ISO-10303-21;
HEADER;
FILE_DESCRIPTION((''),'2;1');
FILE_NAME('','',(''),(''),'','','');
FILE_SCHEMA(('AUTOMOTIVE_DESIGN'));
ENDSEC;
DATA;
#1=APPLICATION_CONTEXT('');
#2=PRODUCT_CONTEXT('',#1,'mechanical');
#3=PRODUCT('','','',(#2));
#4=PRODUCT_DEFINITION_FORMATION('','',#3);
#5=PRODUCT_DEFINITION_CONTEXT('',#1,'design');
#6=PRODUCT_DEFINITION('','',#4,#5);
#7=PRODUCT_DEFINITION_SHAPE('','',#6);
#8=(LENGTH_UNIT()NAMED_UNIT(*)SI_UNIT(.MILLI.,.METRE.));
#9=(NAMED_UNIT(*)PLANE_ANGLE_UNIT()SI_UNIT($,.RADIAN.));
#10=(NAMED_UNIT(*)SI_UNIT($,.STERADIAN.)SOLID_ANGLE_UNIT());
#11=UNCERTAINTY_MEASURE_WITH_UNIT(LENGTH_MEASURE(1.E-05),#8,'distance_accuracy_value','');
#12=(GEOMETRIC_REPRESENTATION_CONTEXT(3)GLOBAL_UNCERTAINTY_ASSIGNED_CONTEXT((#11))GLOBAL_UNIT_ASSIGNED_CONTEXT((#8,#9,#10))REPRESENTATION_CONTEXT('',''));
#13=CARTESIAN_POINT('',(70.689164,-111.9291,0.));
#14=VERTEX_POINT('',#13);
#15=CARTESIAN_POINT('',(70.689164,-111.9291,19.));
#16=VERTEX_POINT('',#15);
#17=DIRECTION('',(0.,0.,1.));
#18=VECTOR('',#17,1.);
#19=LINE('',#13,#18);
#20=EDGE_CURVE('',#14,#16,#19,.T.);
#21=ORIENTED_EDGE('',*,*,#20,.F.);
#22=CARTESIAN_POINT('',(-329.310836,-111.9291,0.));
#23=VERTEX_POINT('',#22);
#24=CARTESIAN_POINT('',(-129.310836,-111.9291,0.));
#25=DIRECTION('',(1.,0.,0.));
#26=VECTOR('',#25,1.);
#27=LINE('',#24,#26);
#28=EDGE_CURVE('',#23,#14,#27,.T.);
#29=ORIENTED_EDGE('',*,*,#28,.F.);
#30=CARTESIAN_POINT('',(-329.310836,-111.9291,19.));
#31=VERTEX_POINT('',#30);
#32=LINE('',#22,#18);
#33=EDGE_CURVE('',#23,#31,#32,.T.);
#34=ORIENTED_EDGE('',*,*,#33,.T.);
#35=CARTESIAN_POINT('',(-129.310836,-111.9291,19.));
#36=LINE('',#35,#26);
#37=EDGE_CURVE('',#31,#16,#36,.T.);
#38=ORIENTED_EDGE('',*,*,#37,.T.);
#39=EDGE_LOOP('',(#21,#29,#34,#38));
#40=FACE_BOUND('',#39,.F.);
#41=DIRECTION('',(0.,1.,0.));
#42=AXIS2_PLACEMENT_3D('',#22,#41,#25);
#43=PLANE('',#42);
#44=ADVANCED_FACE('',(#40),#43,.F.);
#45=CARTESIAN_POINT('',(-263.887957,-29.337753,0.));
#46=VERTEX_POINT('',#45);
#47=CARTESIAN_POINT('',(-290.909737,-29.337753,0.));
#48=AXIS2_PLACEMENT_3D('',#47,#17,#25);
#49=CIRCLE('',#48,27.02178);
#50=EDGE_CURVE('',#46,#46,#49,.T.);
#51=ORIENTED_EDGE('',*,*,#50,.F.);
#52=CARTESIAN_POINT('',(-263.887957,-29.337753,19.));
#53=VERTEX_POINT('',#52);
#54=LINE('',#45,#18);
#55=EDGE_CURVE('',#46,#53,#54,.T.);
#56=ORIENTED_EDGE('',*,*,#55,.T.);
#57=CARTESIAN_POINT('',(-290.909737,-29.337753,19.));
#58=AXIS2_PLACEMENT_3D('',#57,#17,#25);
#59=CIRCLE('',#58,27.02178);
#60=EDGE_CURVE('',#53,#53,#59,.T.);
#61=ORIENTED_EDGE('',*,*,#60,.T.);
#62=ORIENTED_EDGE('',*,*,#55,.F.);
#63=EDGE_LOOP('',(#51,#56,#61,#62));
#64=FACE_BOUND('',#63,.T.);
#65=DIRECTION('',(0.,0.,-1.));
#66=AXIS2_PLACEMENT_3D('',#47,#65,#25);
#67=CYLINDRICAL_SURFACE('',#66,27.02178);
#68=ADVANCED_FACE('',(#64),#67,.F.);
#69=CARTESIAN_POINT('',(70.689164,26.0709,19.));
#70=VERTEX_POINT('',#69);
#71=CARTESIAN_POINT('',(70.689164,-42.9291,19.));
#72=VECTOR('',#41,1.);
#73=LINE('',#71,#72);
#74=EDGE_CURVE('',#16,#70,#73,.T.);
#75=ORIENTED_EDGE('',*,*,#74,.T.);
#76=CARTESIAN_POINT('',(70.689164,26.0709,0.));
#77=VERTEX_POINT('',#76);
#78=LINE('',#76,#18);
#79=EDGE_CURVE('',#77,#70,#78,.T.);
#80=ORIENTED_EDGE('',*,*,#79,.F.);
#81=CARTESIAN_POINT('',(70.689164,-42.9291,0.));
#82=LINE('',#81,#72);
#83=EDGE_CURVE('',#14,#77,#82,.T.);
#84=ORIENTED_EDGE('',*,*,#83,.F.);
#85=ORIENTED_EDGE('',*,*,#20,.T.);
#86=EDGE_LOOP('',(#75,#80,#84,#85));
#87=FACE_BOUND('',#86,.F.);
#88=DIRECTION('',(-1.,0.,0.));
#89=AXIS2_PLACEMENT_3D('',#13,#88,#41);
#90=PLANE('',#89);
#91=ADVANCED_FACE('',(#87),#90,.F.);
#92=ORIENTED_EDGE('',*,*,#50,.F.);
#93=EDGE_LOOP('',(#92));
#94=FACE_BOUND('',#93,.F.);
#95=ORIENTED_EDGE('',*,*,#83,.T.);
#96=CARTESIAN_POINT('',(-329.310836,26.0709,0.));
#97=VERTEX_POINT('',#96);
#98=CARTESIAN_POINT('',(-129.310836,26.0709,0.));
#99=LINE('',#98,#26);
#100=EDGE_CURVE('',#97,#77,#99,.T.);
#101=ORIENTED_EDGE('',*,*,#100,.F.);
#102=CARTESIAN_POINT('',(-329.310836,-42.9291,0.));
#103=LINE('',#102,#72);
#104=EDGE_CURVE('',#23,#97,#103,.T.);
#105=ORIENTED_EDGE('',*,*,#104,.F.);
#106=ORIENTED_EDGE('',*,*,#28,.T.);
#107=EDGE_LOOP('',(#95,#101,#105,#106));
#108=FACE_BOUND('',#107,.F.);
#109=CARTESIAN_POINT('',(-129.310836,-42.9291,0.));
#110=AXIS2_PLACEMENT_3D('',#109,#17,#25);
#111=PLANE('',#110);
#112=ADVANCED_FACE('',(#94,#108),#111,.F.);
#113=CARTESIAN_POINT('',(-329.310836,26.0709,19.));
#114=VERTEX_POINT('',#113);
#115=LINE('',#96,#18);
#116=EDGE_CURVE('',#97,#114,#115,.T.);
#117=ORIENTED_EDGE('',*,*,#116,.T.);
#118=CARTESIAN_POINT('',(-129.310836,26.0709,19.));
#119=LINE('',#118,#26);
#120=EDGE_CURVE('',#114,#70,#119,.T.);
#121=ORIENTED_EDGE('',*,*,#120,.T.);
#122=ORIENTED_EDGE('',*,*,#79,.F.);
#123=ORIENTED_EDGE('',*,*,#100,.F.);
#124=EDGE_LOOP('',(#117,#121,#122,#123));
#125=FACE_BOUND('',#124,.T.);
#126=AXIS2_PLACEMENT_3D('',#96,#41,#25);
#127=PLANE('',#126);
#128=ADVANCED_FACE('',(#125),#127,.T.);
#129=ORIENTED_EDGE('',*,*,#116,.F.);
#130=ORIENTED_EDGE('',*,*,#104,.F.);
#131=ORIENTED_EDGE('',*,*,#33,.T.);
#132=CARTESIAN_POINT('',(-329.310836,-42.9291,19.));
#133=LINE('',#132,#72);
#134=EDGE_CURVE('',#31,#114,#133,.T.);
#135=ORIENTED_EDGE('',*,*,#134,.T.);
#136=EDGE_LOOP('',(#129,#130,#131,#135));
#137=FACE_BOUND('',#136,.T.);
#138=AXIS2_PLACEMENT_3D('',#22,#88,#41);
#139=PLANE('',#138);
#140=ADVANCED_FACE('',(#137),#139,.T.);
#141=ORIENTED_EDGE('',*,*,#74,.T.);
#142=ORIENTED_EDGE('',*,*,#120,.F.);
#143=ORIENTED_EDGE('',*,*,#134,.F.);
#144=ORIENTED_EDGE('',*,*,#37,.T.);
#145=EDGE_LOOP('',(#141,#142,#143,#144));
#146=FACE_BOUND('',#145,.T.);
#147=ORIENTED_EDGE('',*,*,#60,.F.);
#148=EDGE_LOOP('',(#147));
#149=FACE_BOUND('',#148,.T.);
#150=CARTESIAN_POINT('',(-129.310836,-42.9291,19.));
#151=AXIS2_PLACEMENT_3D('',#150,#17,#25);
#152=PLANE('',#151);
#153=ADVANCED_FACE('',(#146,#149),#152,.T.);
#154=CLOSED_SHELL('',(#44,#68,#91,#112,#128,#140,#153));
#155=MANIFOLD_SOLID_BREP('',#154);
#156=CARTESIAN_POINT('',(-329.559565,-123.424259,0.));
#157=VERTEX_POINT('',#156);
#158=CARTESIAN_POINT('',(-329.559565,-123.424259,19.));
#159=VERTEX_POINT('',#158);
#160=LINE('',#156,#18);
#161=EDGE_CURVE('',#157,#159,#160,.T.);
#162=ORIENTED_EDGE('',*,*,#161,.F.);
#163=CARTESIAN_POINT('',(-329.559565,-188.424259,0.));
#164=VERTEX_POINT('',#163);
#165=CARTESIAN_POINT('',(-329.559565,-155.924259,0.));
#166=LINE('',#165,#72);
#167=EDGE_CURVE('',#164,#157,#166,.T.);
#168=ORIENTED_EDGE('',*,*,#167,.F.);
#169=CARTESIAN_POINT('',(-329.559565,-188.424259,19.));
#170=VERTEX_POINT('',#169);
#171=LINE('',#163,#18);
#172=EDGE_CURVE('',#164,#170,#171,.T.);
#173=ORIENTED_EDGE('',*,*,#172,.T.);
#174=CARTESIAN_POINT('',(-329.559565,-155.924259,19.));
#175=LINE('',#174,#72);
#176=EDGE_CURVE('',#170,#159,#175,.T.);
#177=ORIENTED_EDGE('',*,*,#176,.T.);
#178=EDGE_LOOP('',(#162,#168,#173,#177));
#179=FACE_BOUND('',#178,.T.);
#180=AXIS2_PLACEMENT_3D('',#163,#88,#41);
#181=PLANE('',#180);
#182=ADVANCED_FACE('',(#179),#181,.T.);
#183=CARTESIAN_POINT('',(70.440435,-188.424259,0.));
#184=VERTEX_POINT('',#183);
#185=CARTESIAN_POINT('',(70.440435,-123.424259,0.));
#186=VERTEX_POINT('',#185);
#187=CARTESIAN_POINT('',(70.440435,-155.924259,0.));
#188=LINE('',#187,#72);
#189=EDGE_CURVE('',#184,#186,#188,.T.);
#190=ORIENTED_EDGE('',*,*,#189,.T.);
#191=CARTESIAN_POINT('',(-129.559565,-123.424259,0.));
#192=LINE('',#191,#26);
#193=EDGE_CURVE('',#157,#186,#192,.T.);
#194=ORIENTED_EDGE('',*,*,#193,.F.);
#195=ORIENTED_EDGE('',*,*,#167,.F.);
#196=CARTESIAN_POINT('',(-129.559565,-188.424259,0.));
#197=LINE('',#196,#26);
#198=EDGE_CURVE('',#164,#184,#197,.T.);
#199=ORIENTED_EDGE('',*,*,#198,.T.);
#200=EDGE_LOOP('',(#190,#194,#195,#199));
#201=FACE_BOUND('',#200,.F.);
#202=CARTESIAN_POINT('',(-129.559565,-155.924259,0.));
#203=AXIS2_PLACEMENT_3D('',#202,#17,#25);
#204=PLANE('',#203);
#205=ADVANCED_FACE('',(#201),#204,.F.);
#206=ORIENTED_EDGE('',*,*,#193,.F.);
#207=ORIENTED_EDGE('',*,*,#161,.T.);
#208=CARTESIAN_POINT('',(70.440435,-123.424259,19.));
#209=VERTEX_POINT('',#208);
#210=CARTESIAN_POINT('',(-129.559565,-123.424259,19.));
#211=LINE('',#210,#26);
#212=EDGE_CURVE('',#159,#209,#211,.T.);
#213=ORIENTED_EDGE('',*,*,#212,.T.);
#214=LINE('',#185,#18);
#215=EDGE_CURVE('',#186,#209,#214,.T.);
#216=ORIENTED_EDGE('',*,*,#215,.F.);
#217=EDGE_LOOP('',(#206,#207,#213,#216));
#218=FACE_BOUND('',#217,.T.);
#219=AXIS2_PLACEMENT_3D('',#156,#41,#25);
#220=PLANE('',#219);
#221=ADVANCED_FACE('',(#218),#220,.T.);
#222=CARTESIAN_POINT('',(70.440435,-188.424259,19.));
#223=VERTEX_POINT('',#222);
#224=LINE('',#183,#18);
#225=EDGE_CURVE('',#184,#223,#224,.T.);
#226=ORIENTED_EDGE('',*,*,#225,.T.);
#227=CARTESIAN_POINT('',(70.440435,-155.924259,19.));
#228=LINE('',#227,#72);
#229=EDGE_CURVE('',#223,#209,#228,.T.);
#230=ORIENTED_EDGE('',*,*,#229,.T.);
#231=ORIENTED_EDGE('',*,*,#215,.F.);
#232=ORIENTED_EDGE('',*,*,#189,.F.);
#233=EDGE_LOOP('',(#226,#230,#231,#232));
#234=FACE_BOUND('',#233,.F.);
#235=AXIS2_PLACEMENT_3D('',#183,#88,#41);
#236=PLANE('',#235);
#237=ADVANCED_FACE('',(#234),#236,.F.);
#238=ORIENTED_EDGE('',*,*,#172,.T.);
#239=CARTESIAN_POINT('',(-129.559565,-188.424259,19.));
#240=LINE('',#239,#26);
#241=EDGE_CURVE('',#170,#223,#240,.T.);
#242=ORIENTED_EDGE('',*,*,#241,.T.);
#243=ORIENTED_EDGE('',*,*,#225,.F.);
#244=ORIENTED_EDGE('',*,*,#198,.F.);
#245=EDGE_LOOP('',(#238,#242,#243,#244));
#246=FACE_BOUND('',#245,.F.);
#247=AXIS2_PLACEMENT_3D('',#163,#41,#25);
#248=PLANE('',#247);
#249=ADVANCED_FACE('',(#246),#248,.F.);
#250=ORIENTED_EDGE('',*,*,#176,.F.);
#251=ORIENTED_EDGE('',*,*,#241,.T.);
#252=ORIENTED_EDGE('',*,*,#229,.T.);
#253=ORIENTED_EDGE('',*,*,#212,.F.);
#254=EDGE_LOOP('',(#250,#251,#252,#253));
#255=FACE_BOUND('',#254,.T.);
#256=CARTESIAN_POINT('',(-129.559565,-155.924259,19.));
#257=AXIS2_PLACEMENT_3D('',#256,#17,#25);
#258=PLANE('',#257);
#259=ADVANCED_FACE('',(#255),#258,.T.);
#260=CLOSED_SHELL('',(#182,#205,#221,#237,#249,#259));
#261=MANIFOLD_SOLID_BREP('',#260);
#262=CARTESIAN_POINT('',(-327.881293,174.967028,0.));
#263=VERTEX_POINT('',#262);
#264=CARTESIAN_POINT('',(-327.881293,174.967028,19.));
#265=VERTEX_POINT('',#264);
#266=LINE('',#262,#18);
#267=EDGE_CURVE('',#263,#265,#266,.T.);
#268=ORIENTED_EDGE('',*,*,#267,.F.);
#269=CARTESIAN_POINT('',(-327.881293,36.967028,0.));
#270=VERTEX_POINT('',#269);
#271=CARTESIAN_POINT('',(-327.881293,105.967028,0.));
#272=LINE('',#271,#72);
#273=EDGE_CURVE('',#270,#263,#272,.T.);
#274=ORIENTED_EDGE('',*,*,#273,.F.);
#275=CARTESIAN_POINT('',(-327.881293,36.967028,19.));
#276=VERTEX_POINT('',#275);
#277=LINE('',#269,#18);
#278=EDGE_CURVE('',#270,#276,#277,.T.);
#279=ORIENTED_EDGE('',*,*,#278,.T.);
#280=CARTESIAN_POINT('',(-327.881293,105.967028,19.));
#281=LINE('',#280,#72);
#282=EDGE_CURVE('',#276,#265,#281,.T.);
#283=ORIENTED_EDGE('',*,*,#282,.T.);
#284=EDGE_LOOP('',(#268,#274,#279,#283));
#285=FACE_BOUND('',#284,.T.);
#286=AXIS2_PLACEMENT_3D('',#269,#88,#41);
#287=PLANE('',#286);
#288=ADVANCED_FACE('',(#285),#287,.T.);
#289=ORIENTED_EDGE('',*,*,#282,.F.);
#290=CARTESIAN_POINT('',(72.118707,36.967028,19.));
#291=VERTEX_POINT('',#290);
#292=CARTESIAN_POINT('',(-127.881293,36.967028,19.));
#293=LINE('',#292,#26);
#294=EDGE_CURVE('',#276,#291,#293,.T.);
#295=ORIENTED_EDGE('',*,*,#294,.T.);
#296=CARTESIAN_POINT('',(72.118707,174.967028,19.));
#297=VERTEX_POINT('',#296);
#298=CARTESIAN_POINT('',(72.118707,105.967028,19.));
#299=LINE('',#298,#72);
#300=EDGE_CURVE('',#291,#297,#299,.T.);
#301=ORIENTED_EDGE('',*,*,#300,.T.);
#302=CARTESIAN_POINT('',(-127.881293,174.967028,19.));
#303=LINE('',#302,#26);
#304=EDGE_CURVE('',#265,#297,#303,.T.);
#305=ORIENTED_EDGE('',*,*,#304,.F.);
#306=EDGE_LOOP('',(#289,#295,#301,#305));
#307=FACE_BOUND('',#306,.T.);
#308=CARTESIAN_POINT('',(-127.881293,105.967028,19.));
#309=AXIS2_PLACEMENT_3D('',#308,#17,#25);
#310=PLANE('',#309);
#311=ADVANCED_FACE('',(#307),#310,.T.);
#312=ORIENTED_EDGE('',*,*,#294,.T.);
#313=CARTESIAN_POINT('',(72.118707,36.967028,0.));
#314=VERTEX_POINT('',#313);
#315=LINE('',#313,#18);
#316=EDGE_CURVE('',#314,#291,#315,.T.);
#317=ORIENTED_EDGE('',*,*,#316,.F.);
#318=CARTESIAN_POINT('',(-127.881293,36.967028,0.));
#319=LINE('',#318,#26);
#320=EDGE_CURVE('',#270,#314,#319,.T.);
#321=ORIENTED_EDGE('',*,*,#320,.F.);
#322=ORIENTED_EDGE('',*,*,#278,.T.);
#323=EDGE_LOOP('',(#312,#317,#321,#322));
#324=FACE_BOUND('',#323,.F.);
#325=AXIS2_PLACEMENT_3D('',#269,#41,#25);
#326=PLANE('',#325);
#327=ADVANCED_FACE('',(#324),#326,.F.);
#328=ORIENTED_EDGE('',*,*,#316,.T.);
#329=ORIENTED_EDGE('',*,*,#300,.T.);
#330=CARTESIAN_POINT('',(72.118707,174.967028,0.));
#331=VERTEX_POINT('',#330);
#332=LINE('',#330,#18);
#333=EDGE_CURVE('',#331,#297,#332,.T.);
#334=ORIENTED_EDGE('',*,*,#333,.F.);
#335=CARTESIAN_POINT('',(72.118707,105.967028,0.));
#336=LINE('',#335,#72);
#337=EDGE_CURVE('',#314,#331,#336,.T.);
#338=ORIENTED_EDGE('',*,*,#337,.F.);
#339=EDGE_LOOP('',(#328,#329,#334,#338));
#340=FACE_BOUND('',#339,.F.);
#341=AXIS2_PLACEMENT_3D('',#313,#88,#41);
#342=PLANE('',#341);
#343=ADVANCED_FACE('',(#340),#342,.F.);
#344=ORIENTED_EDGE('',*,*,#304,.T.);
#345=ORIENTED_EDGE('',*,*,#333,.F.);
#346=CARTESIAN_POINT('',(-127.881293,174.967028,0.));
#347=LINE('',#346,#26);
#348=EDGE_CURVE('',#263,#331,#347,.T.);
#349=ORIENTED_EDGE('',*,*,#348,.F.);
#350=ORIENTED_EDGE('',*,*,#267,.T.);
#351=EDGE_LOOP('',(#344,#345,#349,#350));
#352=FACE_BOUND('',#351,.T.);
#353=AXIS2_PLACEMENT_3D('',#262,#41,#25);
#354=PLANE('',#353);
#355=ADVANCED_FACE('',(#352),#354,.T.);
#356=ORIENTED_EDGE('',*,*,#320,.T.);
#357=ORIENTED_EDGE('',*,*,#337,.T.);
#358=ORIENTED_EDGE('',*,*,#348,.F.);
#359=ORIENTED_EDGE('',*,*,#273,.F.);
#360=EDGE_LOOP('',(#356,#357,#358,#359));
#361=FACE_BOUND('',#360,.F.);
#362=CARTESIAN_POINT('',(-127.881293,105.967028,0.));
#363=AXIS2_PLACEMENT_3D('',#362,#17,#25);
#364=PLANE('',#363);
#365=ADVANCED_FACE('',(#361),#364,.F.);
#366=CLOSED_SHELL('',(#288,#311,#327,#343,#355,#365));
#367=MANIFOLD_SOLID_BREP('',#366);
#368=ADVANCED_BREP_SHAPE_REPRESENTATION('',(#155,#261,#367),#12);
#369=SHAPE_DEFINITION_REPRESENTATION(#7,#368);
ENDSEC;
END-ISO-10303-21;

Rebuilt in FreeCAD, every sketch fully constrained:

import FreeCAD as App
import Part
import Sketcher
from FreeCAD import Vector
Q = App.Units.Quantity

doc = App.newDocument("Part")
body = doc.addObject("PartDesign::Body", "Body")
body.AllowCompound = True

# Sketch on XY plane
sketch1 = body.newObject("Sketcher::SketchObject", "Sketch")
sketch1.AttachmentSupport = (doc.getObject("XY_Plane"), [""])
sketch1.MapMode = "FlatFace"
sketch1.addGeometry([
    Part.LineSegment(Vector(-327.881293, 174.967028, 0), Vector(-327.881293, 36.967028, 0)),  # 0
    Part.LineSegment(Vector(-327.881293, 36.967028, 0), Vector(72.118707, 36.967028, 0)),  # 1
    Part.LineSegment(Vector(72.118707, 36.967028, 0), Vector(72.118707, 174.967028, 0)),  # 2
    Part.LineSegment(Vector(72.118707, 174.967028, 0), Vector(-327.881293, 174.967028, 0)),  # 3
    Part.LineSegment(Vector(-329.310836, 26.0709, 0), Vector(-329.310836, -111.9291, 0)),  # 4
    Part.LineSegment(Vector(-329.310836, -111.9291, 0), Vector(70.689164, -111.9291, 0)),  # 5
    Part.LineSegment(Vector(70.689164, -111.9291, 0), Vector(70.689164, 26.0709, 0)),  # 6
    Part.LineSegment(Vector(70.689164, 26.0709, 0), Vector(-329.310836, 26.0709, 0)),  # 7
    Part.Circle(Vector(-290.909737, -29.337753, 0), Vector(0, 0, 1), 27.02178),  # 8
    Part.LineSegment(Vector(-329.559565, -123.424259, 0), Vector(-329.559565, -188.424259, 0)),  # 9
    Part.LineSegment(Vector(-329.559565, -188.424259, 0), Vector(70.440435, -188.424259, 0)),  # 10
    Part.LineSegment(Vector(70.440435, -188.424259, 0), Vector(70.440435, -123.424259, 0)),  # 11
    Part.LineSegment(Vector(70.440435, -123.424259, 0), Vector(-329.559565, -123.424259, 0)),  # 12
], False)
sketch1.addConstraint([
    Sketcher.Constraint("Coincident", 0, 2, 1, 1),
    Sketcher.Constraint("Coincident", 1, 2, 2, 1),
    Sketcher.Constraint("Coincident", 2, 2, 3, 1),
    Sketcher.Constraint("Coincident", 3, 2, 0, 1),
    Sketcher.Constraint("Coincident", 4, 2, 5, 1),
    Sketcher.Constraint("Coincident", 5, 2, 6, 1),
    Sketcher.Constraint("Coincident", 6, 2, 7, 1),
    Sketcher.Constraint("Coincident", 7, 2, 4, 1),
    Sketcher.Constraint("Coincident", 9, 2, 10, 1),
    Sketcher.Constraint("Coincident", 10, 2, 11, 1),
    Sketcher.Constraint("Coincident", 11, 2, 12, 1),
    Sketcher.Constraint("Coincident", 12, 2, 9, 1),
    Sketcher.Constraint("Vertical", 0),
    Sketcher.Constraint("Horizontal", 1),
    Sketcher.Constraint("Vertical", 2),
    Sketcher.Constraint("Horizontal", 3),
    Sketcher.Constraint("Vertical", 4),
    Sketcher.Constraint("Horizontal", 5),
    Sketcher.Constraint("Vertical", 6),
    Sketcher.Constraint("Horizontal", 7),
    Sketcher.Constraint("Vertical", 9),
    Sketcher.Constraint("Horizontal", 10),
    Sketcher.Constraint("Vertical", 11),
    Sketcher.Constraint("Horizontal", 12),
    Sketcher.Constraint("Equal", 3, 5),
    Sketcher.Constraint("Equal", 7, 10),
    Sketcher.Constraint("Equal", 2, 4),
    Sketcher.Constraint("DistanceX", 1, 1, 1, 2, Q("400 mm")),
    Sketcher.Constraint("DistanceY", 0, 2, 0, 1, Q("138 mm")),
    Sketcher.Constraint("DistanceY", 9, 2, 9, 1, Q("65 mm")),
    Sketcher.Constraint("Diameter", 8, Q("54.04356 mm")),
    Sketcher.Constraint("DistanceY", 4, 2, -1, 1, Q("111.9291 mm")),
    Sketcher.Constraint("DistanceX", 4, 2, 8, 3, Q("38.401099 mm")),
    Sketcher.Constraint("DistanceY", -1, 1, 2, 2, Q("174.967028 mm")),
    Sketcher.Constraint("DistanceY", 9, 2, -1, 1, Q("188.424259 mm")),
    Sketcher.Constraint("DistanceY", 8, 3, 0, 2, Q("66.304781 mm")),
    Sketcher.Constraint("DistanceX", 9, 2, 4, 2, Q("0.248729 mm")),
    Sketcher.Constraint("DistanceX", 9, 2, 0, 2, Q("1.678272 mm")),
    Sketcher.Constraint("DistanceX", 8, 3, -1, 1, Q("290.909737 mm")),
])
pad1 = body.newObject("PartDesign::Pad", "Pad")
pad1.Profile = sketch1
pad1.Length = 19

doc.recompute()
